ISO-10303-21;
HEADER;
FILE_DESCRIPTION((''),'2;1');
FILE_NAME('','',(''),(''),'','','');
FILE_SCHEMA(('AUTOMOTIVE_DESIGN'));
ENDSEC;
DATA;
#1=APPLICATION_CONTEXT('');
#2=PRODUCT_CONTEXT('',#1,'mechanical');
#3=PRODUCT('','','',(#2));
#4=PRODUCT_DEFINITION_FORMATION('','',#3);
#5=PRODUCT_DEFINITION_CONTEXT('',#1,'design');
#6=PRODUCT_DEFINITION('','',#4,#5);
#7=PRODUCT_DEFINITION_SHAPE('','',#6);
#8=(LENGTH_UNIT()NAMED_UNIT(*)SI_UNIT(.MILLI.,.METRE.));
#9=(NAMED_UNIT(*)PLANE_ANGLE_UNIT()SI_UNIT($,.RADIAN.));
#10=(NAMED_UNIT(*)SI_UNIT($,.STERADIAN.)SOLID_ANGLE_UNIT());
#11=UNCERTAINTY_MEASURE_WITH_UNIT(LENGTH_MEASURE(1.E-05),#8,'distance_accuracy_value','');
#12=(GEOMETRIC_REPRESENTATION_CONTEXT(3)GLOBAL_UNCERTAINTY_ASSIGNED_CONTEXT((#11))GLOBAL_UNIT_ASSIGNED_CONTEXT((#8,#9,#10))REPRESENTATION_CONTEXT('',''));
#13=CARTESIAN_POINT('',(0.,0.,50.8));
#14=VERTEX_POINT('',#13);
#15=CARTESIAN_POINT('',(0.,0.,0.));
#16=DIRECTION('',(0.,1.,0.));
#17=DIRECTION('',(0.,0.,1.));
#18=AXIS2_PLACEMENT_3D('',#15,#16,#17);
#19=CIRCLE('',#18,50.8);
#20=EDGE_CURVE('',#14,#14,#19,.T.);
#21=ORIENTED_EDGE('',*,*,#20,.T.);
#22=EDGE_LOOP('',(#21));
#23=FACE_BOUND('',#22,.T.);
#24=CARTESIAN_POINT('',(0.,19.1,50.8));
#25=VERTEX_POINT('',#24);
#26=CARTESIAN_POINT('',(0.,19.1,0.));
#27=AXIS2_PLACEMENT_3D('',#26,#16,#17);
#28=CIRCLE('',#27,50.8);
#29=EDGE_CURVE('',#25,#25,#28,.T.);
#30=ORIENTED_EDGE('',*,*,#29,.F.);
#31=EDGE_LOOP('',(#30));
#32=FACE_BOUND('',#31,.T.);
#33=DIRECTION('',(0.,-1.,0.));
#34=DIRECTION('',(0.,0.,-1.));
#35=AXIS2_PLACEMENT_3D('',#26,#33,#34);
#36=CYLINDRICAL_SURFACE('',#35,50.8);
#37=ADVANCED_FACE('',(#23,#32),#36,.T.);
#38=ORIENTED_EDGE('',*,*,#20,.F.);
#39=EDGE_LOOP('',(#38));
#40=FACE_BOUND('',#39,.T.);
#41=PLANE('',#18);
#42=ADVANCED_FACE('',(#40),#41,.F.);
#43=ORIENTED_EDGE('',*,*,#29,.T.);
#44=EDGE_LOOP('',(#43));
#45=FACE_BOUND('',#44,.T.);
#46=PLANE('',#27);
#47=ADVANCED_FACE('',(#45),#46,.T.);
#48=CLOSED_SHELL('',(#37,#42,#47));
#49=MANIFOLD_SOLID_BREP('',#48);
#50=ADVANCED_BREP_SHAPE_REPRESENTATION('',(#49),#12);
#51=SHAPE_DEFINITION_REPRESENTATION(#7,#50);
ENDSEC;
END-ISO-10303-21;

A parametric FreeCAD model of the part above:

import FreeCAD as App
import Part
import Sketcher
from FreeCAD import Vector

doc = App.newDocument("Part")
body = doc.addObject("PartDesign::Body", "Body")

# Sketch on XZ plane
sketch1 = body.newObject("Sketcher::SketchObject", "Sketch")
sketch1.AttachmentSupport = (doc.getObject("XZ_Plane"), [""])
sketch1.MapMode = "FlatFace"
sketch1.addGeometry(Part.Circle(Vector(0, 0, 0), Vector(0, 0, 1), 50.8), False)
sketch1.addConstraint(Sketcher.Constraint("Coincident", 0, 3, -1, 1))
sketch1.addConstraint(Sketcher.Constraint("Diameter", 0, 101.6))
pad1 = body.newObject("PartDesign::Pad", "Pad")
pad1.Profile = sketch1
pad1.Length = 19.1
pad1.Reversed = True

doc.recompute()
